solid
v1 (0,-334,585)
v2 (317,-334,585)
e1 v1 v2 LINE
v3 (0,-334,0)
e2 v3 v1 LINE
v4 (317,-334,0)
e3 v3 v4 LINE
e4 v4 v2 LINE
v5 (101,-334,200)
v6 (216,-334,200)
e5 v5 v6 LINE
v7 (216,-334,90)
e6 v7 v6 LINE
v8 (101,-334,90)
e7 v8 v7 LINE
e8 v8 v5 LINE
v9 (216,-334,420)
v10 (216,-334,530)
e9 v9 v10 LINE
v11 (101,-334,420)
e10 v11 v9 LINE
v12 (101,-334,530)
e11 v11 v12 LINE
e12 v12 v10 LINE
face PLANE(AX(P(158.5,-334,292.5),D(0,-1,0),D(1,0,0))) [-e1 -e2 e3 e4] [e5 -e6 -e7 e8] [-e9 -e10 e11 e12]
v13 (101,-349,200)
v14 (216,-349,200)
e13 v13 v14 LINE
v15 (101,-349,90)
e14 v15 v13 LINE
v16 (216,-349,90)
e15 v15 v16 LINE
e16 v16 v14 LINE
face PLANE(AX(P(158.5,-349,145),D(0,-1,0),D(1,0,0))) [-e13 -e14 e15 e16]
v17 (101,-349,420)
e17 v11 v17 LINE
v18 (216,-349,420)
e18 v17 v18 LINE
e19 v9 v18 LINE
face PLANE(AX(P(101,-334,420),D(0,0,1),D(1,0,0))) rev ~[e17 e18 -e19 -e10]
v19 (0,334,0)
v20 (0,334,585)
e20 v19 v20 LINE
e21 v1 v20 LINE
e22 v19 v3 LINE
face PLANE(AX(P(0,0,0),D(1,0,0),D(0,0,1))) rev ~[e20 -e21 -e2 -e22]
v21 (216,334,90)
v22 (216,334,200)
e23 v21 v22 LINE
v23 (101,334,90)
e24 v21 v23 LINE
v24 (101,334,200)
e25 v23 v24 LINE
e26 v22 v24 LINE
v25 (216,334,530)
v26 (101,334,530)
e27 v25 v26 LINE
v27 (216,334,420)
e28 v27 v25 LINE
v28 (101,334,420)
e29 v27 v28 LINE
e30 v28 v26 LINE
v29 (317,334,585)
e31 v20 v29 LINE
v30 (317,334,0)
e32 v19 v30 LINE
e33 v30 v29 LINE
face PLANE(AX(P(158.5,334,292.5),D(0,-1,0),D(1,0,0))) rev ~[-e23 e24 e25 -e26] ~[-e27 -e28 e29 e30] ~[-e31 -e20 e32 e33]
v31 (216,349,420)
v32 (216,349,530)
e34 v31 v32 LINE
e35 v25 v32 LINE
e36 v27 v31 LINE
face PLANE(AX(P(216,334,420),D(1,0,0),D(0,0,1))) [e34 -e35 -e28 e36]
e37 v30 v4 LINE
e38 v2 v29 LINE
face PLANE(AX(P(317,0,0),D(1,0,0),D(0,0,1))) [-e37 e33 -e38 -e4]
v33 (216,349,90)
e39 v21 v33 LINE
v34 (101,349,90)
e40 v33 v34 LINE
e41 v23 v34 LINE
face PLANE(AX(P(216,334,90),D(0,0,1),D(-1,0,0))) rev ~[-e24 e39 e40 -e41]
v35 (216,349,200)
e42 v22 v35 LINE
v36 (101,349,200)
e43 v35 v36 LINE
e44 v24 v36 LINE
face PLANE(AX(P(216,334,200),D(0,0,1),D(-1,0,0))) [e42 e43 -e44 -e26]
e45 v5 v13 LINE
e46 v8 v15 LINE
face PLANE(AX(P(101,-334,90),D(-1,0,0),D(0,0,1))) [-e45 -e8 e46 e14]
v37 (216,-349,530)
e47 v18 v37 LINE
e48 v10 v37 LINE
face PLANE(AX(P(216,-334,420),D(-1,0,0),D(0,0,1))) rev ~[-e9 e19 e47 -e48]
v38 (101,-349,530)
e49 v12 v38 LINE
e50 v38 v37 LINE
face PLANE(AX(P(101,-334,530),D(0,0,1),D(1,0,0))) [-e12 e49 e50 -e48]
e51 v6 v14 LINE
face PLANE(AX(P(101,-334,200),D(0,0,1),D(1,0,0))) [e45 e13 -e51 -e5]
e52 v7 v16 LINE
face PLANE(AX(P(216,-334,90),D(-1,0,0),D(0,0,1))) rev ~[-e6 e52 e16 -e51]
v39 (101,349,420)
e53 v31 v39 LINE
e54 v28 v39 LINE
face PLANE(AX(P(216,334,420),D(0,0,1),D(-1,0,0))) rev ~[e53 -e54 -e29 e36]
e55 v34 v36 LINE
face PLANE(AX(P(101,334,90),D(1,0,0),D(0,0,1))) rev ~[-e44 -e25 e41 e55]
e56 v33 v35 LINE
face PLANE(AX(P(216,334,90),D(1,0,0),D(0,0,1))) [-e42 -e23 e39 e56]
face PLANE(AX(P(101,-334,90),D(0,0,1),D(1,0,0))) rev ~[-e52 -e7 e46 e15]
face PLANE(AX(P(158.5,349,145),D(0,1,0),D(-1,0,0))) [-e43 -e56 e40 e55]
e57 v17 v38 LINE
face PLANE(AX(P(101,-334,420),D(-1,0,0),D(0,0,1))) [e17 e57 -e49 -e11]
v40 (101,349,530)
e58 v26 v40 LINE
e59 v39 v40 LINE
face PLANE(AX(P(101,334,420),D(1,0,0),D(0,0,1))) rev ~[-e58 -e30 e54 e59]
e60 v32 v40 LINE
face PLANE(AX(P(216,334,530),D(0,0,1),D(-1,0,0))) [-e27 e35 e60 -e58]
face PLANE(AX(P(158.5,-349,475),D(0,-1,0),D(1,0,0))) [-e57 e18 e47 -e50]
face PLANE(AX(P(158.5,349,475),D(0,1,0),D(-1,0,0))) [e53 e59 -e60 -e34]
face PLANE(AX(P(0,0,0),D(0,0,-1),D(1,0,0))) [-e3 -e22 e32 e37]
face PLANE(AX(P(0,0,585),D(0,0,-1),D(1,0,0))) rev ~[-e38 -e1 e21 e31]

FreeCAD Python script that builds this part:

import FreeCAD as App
import Part
import Sketcher

V = App.Vector
Q = App.Units.Quantity

doc = App.newDocument("Part")
body = doc.addObject("PartDesign::Body", "Body")

# Sketch on XZ plane
sketch1 = body.newObject("Sketcher::SketchObject", "Sketch")
sketch1.AttachmentSupport = (doc.getObject("XZ_Plane"), [""])
sketch1.MapMode = "FlatFace"
sketch1.addGeometry([
    Part.LineSegment(V(0, 585, 0), V(0, 0, 0)),
    Part.LineSegment(V(0, 0, 0), V(317, 0, 0)),
    Part.LineSegment(V(317, 0, 0), V(317, 585, 0)),
    Part.LineSegment(V(317, 585, 0), V(0, 585, 0)),
], False)
sketch1.addConstraint([
    Sketcher.Constraint("Coincident", 0, 2, 1, 1),
    Sketcher.Constraint("Coincident", 1, 2, 2, 1),
    Sketcher.Constraint("Coincident", 2, 2, 3, 1),
    Sketcher.Constraint("Coincident", 3, 2, 0, 1),
    Sketcher.Constraint("Vertical", 0),
    Sketcher.Constraint("Horizontal", 1),
    Sketcher.Constraint("Vertical", 2),
    Sketcher.Constraint("Horizontal", 3),
    Sketcher.Constraint("Coincident", 0, 2, -1, 1),
    Sketcher.Constraint("DistanceX", 1, 1, 1, 2, Q("317 mm")),
    Sketcher.Constraint("DistanceY", 0, 2, 0, 1, Q("585 mm")),
])
pad1 = body.newObject("PartDesign::Pad", "Pad")
pad1.Profile = sketch1
pad1.Length = 668
pad1.Midplane = True

# Sketch on XZ plane
sketch2 = body.newObject("Sketcher::SketchObject", "Sketch001")
sketch2.AttachmentSupport = (doc.getObject("XZ_Plane"), [""])
sketch2.MapMode = "FlatFace"
sketch2.AttachmentOffset = App.Placement(V(0, 0, 334), App.Rotation())
sketch2.addGeometry([
    Part.LineSegment(V(101, 530, 0), V(101, 420, 0)),  # 0
    Part.LineSegment(V(101, 420, 0), V(216, 420, 0)),  # 1
    Part.LineSegment(V(216, 420, 0), V(216, 530, 0)),  # 2
    Part.LineSegment(V(216, 530, 0), V(101, 530, 0)),  # 3
    Part.LineSegment(V(101, 200, 0), V(101, 90, 0)),  # 4
    Part.LineSegment(V(101, 90, 0), V(216, 90, 0)),  # 5
    Part.LineSegment(V(216, 90, 0), V(216, 200, 0)),  # 6
    Part.LineSegment(V(216, 200, 0), V(101, 200, 0)),  # 7
], False)
sketch2.addConstraint([
    Sketcher.Constraint("Coincident", 0, 2, 1, 1),
    Sketcher.Constraint("Coincident", 1, 2, 2, 1),
    Sketcher.Constraint("Coincident", 2, 2, 3, 1),
    Sketcher.Constraint("Coincident", 3, 2, 0, 1),
    Sketcher.Constraint("Coincident", 4, 2, 5, 1),
    Sketcher.Constraint("Coincident", 5, 2, 6, 1),
    Sketcher.Constraint("Coincident", 6, 2, 7, 1),
    Sketcher.Constraint("Coincident", 7, 2, 4, 1),
    Sketcher.Constraint("Vertical", 0),
    Sketcher.Constraint("Horizontal", 1),
    Sketcher.Constraint("Vertical", 2),
    Sketcher.Constraint("Horizontal", 3),
    Sketcher.Constraint("Vertical", 4),
    Sketcher.Constraint("Horizontal", 5),
    Sketcher.Constraint("Vertical", 6),
    Sketcher.Constraint("Horizontal", 7),
    Sketcher.Constraint("Vertical", 3, 2, 4, 2),
    Sketcher.Constraint("Vertical", 2, 2, 5, 2),
    Sketcher.Constraint("Equal", 2, 4),
    Sketcher.Constraint("DistanceX", 1, 1, 1, 2, Q("115 mm")),
    Sketcher.Constraint("DistanceY", 0, 2, 0, 1, Q("110 mm")),
    Sketcher.Constraint("DistanceX", -1, 1, 0, 2, Q("101 mm")),
    Sketcher.Constraint("DistanceY", -1, 1, 0, 2, Q("420 mm")),
    Sketcher.Constraint("DistanceY", -1, 1, 4, 2, Q("90 mm")),
])
pad2 = body.newObject("PartDesign::Pad", "Pad001")
pad2.Profile = sketch2
pad2.Length = 15

# Sketch on XZ plane
sketch3 = body.newObject("Sketcher::SketchObject", "Sketch002")
sketch3.AttachmentSupport = (doc.getObject("XZ_Plane"), [""])
sketch3.MapMode = "FlatFace"
sketch3.AttachmentOffset = App.Placement(V(0, 0, -334), App.Rotation())
sketch3.addGeometry([
    Part.LineSegment(V(216, 530, 0), V(216, 420, 0)),  # 0
    Part.LineSegment(V(216, 420, 0), V(101, 420, 0)),  # 1
    Part.LineSegment(V(101, 420, 0), V(101, 530, 0)),  # 2
    Part.LineSegment(V(101, 530, 0), V(216, 530, 0)),  # 3
    Part.LineSegment(V(216, 200, 0), V(216, 90, 0)),  # 4
    Part.LineSegment(V(216, 90, 0), V(101, 90, 0)),  # 5
    Part.LineSegment(V(101, 90, 0), V(101, 200, 0)),  # 6
    Part.LineSegment(V(101, 200, 0), V(216, 200, 0)),  # 7
], False)
sketch3.addConstraint([
    Sketcher.Constraint("Coincident", 0, 2, 1, 1),
    Sketcher.Constraint("Coincident", 1, 2, 2, 1),
    Sketcher.Constraint("Coincident", 2, 2, 3, 1),
    Sketcher.Constraint("Coincident", 3, 2, 0, 1),
    Sketcher.Constraint("Coincident", 4, 2, 5, 1),
    Sketcher.Constraint("Coincident", 5, 2, 6, 1),
    Sketcher.Constraint("Coincident", 6, 2, 7, 1),
    Sketcher.Constraint("Coincident", 7, 2, 4, 1),
    Sketcher.Constraint("Vertical", 0),
    Sketcher.Constraint("Horizontal", 1),
    Sketcher.Constraint("Vertical", 2),
    Sketcher.Constraint("Horizontal", 3),
    Sketcher.Constraint("Vertical", 4),
    Sketcher.Constraint("Horizontal", 5),
    Sketcher.Constraint("Vertical", 6),
    Sketcher.Constraint("Horizontal", 7),
    Sketcher.Constraint("Vertical", 3, 2, 4, 2),
    Sketcher.Constraint("Vertical", 2, 2, 5, 2),
    Sketcher.Constraint("Equal", 2, 4),
    Sketcher.Constraint("DistanceX", 1, 2, 1, 1, Q("115 mm")),
    Sketcher.Constraint("DistanceY", 0, 2, 0, 1, Q("110 mm")),
    Sketcher.Constraint("DistanceX", -1, 1, 0, 2, Q("216 mm")),
    Sketcher.Constraint("DistanceY", -1, 1, 0, 2, Q("420 mm")),
    Sketcher.Constraint("DistanceY", -1, 1, 4, 2, Q("90 mm")),
])
pad3 = body.newObject("PartDesign::Pad", "Pad002")
pad3.Profile = sketch3
pad3.Length = 15
pad3.Reversed = True

doc.recompute()
